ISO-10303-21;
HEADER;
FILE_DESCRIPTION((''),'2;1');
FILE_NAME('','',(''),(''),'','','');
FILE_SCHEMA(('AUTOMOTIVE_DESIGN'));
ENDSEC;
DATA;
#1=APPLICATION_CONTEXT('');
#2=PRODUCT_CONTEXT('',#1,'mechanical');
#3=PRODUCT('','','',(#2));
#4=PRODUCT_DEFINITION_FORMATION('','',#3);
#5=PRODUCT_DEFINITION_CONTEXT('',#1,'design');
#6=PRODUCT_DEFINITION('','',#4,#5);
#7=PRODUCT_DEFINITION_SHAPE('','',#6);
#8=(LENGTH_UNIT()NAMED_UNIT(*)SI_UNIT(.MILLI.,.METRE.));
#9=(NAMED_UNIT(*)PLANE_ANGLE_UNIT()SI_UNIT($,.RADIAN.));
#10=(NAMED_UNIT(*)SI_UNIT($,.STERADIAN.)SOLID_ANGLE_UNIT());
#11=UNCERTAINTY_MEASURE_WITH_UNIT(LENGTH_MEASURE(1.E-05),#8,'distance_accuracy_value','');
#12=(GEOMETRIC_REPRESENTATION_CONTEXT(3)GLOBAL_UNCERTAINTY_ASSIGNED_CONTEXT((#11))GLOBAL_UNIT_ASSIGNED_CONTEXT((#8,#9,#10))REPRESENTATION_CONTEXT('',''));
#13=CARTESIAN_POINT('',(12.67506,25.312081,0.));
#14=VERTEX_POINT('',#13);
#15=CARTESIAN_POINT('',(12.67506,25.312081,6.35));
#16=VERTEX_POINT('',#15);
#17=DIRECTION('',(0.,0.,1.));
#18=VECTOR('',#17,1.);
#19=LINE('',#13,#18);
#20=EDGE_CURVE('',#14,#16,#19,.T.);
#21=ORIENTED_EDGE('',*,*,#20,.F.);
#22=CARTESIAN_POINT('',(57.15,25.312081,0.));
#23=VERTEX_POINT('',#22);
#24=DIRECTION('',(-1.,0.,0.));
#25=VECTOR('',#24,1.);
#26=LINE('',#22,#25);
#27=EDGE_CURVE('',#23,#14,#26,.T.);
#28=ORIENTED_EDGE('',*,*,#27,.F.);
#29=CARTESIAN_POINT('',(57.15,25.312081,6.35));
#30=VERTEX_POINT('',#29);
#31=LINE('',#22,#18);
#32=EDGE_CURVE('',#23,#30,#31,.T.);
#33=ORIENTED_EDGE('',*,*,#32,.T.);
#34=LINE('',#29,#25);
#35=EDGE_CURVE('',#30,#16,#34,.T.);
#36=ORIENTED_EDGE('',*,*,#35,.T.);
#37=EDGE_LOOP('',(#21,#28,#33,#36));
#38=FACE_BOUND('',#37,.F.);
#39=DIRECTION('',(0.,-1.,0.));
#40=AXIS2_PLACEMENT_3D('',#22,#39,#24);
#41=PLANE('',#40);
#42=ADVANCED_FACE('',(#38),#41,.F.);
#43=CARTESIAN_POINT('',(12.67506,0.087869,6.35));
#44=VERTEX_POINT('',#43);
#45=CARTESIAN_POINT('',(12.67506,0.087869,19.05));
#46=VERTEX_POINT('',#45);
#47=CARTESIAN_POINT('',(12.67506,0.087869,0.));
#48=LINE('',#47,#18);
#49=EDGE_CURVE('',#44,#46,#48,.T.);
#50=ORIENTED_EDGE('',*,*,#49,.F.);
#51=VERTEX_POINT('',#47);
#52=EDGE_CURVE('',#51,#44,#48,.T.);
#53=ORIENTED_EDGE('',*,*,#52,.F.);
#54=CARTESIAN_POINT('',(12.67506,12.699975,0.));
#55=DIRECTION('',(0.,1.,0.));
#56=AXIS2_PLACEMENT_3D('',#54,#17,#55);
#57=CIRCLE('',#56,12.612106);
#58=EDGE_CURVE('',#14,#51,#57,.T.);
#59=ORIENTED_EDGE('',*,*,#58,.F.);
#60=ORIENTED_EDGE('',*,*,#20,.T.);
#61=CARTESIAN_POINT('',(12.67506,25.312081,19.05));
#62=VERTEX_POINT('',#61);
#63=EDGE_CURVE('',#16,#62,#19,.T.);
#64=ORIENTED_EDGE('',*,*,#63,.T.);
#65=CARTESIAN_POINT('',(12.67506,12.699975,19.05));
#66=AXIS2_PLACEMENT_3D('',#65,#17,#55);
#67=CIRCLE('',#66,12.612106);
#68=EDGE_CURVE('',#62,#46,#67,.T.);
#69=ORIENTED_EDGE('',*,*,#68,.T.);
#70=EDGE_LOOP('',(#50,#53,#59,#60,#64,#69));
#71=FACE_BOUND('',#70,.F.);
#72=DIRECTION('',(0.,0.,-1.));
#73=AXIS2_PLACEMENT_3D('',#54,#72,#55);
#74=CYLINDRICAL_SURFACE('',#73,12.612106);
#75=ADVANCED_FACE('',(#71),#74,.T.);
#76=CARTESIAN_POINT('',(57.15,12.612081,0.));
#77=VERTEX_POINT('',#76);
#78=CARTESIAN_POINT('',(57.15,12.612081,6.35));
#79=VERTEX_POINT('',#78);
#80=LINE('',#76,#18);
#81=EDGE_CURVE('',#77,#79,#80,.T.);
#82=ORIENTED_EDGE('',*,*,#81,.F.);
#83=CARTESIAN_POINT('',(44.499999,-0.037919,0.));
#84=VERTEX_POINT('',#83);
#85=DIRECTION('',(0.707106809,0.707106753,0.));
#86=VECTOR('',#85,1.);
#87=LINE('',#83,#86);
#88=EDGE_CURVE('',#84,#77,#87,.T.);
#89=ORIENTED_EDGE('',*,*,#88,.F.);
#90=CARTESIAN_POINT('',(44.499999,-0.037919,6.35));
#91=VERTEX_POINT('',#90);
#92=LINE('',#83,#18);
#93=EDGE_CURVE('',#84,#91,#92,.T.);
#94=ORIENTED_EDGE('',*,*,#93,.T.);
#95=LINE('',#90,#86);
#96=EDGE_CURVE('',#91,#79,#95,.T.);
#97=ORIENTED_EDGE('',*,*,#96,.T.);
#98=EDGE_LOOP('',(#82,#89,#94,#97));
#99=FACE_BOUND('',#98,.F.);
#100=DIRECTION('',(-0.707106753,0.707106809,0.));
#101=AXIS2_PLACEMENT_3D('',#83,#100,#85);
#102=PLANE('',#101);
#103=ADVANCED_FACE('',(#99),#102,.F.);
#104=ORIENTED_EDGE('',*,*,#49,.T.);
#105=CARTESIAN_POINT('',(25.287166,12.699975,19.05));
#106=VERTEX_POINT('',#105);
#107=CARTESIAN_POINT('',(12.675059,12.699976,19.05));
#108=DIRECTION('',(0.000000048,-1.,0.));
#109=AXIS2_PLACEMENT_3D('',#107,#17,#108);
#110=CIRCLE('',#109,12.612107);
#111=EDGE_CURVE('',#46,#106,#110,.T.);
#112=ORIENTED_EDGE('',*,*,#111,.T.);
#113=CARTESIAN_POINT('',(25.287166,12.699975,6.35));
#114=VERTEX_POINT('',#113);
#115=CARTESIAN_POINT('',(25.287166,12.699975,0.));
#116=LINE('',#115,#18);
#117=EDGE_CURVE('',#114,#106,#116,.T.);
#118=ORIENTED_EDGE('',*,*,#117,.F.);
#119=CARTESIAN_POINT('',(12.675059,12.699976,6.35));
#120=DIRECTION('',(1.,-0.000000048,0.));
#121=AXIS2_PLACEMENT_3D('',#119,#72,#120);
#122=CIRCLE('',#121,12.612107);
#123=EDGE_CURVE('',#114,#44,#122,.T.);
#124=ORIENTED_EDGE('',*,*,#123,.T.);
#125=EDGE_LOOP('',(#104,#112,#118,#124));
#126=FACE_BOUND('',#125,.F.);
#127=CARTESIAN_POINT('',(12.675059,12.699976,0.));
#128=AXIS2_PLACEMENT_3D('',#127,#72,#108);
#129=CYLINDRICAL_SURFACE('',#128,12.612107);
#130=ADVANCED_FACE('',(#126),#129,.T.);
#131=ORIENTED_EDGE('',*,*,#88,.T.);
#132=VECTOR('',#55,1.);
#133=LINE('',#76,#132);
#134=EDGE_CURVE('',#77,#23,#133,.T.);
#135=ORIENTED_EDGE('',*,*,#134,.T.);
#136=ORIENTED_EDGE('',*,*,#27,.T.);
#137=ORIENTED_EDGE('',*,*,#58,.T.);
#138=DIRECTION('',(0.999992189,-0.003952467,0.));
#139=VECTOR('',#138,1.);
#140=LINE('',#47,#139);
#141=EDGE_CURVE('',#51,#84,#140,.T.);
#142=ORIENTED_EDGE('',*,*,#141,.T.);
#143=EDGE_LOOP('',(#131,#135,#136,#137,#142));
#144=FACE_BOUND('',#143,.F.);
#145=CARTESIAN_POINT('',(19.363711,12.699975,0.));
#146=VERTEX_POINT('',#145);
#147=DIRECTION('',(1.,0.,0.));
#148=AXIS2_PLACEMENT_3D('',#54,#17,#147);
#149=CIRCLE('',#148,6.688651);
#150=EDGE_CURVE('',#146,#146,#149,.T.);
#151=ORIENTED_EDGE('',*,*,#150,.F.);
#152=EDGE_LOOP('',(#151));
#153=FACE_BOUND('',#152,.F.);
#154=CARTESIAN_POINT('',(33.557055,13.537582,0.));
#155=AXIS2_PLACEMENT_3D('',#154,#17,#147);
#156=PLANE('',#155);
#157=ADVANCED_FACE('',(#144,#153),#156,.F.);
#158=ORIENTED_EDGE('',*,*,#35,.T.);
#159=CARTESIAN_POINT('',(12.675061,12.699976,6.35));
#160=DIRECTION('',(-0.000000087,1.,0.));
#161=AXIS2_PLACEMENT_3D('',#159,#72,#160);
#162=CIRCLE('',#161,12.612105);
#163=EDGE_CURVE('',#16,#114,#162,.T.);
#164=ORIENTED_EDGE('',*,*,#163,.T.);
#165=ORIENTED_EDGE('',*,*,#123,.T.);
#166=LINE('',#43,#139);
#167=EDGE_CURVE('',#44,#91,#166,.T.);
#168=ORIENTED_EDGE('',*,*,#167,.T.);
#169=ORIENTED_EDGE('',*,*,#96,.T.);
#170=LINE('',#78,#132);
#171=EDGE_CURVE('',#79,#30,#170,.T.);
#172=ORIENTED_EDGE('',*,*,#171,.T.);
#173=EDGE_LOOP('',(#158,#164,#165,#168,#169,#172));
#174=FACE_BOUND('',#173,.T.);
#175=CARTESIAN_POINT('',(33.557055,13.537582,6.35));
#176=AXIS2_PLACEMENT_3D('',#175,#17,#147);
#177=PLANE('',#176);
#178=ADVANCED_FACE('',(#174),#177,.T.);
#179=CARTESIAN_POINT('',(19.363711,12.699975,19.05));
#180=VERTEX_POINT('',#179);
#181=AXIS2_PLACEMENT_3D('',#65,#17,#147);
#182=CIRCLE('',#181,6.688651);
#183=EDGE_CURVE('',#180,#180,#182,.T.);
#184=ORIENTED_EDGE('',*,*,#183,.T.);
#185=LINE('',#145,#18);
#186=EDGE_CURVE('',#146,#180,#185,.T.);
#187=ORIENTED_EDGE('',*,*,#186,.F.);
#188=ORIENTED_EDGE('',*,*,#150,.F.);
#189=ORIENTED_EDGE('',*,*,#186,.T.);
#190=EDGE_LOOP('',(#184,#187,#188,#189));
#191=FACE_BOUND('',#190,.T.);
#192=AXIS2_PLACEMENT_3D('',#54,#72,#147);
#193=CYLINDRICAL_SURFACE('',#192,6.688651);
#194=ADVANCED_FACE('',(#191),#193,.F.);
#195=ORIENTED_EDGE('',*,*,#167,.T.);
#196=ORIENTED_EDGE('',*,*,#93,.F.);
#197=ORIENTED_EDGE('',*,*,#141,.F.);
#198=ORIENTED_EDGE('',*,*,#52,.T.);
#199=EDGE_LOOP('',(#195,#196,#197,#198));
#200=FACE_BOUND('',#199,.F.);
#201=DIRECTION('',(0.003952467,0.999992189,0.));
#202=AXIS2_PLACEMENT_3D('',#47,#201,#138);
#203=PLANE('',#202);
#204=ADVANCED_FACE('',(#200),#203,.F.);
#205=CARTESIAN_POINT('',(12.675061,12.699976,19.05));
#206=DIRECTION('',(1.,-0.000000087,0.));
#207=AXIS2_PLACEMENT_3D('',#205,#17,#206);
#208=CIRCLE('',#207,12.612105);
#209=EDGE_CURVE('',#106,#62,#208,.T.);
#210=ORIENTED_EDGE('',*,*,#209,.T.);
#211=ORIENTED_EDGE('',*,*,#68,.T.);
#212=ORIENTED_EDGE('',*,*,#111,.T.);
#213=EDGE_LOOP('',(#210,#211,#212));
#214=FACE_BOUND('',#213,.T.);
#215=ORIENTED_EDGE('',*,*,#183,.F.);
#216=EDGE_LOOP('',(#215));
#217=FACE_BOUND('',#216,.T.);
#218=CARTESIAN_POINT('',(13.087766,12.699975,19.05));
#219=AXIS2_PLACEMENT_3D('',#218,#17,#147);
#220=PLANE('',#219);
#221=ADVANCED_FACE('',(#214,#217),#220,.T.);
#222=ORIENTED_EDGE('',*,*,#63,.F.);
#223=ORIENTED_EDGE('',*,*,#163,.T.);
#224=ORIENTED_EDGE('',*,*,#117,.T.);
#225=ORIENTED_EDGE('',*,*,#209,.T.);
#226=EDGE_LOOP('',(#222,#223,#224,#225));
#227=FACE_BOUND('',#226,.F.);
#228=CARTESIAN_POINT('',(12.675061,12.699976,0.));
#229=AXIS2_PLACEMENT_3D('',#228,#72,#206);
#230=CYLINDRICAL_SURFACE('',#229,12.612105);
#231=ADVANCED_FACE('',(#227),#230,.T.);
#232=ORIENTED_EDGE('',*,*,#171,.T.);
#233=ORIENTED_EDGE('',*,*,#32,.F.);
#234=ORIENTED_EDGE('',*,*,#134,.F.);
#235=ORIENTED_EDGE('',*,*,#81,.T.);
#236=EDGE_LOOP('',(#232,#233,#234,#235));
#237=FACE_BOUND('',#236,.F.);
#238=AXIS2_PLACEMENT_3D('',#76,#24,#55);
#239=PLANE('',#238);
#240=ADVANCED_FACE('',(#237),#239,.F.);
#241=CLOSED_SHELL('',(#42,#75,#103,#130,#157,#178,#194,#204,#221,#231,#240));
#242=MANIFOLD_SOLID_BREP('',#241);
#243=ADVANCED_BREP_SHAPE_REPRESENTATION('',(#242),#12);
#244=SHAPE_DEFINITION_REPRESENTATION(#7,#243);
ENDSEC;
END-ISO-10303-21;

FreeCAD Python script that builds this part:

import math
import FreeCAD as App
import Part
import Sketcher
from FreeCAD import Vector
Q = App.Units.Quantity

doc = App.newDocument("Part")
body = doc.addObject("PartDesign::Body", "Body")

sketch1 = body.newObject("Sketcher::SketchObject", "Sketch")
sketch1.AttachmentSupport = (doc.getObject("XY_Plane"), [""])
sketch1.MapMode = "FlatFace"
sketch1.addGeometry([
    Part.ArcOfCircle(Part.Circle(Vector(13, 13, 0), Vector(0, 0, 1), 13), math.radians(90), math.radians(270)),
    Part.ArcOfCircle(Part.Circle(Vector(13, 13, 0), Vector(0, 0, 1), 13), math.radians(-90), math.radians(0)),
    Part.ArcOfCircle(Part.Circle(Vector(13, 13, 0), Vector(0, 0, 1), 13), math.radians(0), math.radians(90)),
    Part.Circle(Vector(13, 13, 0), Vector(0, 0, 1), 7),
], False)
sketch1.addConstraint([
    Sketcher.Constraint("Tangent", 0, 2, 1, 1),
    Sketcher.Constraint("Tangent", 1, 2, 2, 1),
    Sketcher.Constraint("Tangent", 2, 2, 0, 1),
    Sketcher.Constraint("Coincident", 3, 3, 0, 3),
    Sketcher.Constraint("Horizontal", 3, 3, 1, 2),
    Sketcher.Constraint("Vertical", 3, 3, 0, 2),
    Sketcher.Constraint("Vertical", 0, 2, 2, 2),
    Sketcher.Constraint("Diameter", 3, Q("13.377302 mm")),
    Sketcher.Constraint("Radius", 0, Q("12.612106 mm")),
    Sketcher.Constraint("DistanceX", -1, 1, 0, 3, Q("12.67506 mm")),
    Sketcher.Constraint("DistanceY", -1, 1, 0, 2, Q("0.087869 mm")),
])
pad1 = body.newObject("PartDesign::Pad", "Pad")
pad1.Profile = sketch1
pad1.Length = Q("0.75 in")

sketch2 = body.newObject("Sketcher::SketchObject", "Sketch001")
sketch2.AttachmentSupport = (doc.getObject("XY_Plane"), [""])
sketch2.MapMode = "FlatFace"
sketch2.addGeometry([
    Part.LineSegment(Vector(44, 0, 0), Vector(57, 13, 0)),
    Part.LineSegment(Vector(57, 13, 0), Vector(57, 25, 0)),
    Part.LineSegment(Vector(57, 25, 0), Vector(13, 25, 0)),
    Part.ArcOfCircle(Part.Circle(Vector(13, 13, 0), Vector(0, 0, 1), 13), math.radians(0), math.radians(90)),
    Part.ArcOfCircle(Part.Circle(Vector(13, 13, 0), Vector(0, 0, 1), 13), math.radians(-90), math.radians(0)),
    Part.LineSegment(Vector(13, 0, 0), Vector(44, 0, 0)),
], False)
sketch2.addConstraint([
    Sketcher.Constraint("Coincident", 0, 2, 1, 1),
    Sketcher.Constraint("Coincident", 1, 2, 2, 1),
    Sketcher.Constraint("Tangent", 2, 2, 3, 2),
    Sketcher.Constraint("Tangent", 3, 1, 4, 2),
    Sketcher.Constraint("Coincident", 4, 1, 5, 1),
    Sketcher.Constraint("Coincident", 5, 2, 0, 1),
    Sketcher.Constraint("Vertical", 1),
    Sketcher.Constraint("Horizontal", 2),
    Sketcher.Constraint("Equal", 3, 4),
    Sketcher.Constraint("Horizontal", 4, 3, 3, 1),
    Sketcher.Constraint("Vertical", 2, 2, 4, 1),
    Sketcher.Constraint("DistanceY", 1, 1, 1, 2, Q("0.5 in")),
    Sketcher.Constraint("Angle", 0, Q("44.999998 deg")),
    Sketcher.Constraint("DistanceX", -1, 1, 0, 2, Q("2.25 in")),
    Sketcher.Constraint("Radius", 3, Q("12.612105 mm")),
    Sketcher.Constraint("DistanceX", 2, 2, 2, 1, Q("44.47494 mm")),
    Sketcher.Constraint("DistanceX", -1, 1, 5, 2, Q("44.499999 mm")),
    Sketcher.Constraint("DistanceY", -1, 1, 0, 2, Q("12.612081 mm")),
])
pad2 = body.newObject("PartDesign::Pad", "Pad001")
pad2.Profile = sketch2
pad2.Length = Q("0.25 in")

doc.recompute()
